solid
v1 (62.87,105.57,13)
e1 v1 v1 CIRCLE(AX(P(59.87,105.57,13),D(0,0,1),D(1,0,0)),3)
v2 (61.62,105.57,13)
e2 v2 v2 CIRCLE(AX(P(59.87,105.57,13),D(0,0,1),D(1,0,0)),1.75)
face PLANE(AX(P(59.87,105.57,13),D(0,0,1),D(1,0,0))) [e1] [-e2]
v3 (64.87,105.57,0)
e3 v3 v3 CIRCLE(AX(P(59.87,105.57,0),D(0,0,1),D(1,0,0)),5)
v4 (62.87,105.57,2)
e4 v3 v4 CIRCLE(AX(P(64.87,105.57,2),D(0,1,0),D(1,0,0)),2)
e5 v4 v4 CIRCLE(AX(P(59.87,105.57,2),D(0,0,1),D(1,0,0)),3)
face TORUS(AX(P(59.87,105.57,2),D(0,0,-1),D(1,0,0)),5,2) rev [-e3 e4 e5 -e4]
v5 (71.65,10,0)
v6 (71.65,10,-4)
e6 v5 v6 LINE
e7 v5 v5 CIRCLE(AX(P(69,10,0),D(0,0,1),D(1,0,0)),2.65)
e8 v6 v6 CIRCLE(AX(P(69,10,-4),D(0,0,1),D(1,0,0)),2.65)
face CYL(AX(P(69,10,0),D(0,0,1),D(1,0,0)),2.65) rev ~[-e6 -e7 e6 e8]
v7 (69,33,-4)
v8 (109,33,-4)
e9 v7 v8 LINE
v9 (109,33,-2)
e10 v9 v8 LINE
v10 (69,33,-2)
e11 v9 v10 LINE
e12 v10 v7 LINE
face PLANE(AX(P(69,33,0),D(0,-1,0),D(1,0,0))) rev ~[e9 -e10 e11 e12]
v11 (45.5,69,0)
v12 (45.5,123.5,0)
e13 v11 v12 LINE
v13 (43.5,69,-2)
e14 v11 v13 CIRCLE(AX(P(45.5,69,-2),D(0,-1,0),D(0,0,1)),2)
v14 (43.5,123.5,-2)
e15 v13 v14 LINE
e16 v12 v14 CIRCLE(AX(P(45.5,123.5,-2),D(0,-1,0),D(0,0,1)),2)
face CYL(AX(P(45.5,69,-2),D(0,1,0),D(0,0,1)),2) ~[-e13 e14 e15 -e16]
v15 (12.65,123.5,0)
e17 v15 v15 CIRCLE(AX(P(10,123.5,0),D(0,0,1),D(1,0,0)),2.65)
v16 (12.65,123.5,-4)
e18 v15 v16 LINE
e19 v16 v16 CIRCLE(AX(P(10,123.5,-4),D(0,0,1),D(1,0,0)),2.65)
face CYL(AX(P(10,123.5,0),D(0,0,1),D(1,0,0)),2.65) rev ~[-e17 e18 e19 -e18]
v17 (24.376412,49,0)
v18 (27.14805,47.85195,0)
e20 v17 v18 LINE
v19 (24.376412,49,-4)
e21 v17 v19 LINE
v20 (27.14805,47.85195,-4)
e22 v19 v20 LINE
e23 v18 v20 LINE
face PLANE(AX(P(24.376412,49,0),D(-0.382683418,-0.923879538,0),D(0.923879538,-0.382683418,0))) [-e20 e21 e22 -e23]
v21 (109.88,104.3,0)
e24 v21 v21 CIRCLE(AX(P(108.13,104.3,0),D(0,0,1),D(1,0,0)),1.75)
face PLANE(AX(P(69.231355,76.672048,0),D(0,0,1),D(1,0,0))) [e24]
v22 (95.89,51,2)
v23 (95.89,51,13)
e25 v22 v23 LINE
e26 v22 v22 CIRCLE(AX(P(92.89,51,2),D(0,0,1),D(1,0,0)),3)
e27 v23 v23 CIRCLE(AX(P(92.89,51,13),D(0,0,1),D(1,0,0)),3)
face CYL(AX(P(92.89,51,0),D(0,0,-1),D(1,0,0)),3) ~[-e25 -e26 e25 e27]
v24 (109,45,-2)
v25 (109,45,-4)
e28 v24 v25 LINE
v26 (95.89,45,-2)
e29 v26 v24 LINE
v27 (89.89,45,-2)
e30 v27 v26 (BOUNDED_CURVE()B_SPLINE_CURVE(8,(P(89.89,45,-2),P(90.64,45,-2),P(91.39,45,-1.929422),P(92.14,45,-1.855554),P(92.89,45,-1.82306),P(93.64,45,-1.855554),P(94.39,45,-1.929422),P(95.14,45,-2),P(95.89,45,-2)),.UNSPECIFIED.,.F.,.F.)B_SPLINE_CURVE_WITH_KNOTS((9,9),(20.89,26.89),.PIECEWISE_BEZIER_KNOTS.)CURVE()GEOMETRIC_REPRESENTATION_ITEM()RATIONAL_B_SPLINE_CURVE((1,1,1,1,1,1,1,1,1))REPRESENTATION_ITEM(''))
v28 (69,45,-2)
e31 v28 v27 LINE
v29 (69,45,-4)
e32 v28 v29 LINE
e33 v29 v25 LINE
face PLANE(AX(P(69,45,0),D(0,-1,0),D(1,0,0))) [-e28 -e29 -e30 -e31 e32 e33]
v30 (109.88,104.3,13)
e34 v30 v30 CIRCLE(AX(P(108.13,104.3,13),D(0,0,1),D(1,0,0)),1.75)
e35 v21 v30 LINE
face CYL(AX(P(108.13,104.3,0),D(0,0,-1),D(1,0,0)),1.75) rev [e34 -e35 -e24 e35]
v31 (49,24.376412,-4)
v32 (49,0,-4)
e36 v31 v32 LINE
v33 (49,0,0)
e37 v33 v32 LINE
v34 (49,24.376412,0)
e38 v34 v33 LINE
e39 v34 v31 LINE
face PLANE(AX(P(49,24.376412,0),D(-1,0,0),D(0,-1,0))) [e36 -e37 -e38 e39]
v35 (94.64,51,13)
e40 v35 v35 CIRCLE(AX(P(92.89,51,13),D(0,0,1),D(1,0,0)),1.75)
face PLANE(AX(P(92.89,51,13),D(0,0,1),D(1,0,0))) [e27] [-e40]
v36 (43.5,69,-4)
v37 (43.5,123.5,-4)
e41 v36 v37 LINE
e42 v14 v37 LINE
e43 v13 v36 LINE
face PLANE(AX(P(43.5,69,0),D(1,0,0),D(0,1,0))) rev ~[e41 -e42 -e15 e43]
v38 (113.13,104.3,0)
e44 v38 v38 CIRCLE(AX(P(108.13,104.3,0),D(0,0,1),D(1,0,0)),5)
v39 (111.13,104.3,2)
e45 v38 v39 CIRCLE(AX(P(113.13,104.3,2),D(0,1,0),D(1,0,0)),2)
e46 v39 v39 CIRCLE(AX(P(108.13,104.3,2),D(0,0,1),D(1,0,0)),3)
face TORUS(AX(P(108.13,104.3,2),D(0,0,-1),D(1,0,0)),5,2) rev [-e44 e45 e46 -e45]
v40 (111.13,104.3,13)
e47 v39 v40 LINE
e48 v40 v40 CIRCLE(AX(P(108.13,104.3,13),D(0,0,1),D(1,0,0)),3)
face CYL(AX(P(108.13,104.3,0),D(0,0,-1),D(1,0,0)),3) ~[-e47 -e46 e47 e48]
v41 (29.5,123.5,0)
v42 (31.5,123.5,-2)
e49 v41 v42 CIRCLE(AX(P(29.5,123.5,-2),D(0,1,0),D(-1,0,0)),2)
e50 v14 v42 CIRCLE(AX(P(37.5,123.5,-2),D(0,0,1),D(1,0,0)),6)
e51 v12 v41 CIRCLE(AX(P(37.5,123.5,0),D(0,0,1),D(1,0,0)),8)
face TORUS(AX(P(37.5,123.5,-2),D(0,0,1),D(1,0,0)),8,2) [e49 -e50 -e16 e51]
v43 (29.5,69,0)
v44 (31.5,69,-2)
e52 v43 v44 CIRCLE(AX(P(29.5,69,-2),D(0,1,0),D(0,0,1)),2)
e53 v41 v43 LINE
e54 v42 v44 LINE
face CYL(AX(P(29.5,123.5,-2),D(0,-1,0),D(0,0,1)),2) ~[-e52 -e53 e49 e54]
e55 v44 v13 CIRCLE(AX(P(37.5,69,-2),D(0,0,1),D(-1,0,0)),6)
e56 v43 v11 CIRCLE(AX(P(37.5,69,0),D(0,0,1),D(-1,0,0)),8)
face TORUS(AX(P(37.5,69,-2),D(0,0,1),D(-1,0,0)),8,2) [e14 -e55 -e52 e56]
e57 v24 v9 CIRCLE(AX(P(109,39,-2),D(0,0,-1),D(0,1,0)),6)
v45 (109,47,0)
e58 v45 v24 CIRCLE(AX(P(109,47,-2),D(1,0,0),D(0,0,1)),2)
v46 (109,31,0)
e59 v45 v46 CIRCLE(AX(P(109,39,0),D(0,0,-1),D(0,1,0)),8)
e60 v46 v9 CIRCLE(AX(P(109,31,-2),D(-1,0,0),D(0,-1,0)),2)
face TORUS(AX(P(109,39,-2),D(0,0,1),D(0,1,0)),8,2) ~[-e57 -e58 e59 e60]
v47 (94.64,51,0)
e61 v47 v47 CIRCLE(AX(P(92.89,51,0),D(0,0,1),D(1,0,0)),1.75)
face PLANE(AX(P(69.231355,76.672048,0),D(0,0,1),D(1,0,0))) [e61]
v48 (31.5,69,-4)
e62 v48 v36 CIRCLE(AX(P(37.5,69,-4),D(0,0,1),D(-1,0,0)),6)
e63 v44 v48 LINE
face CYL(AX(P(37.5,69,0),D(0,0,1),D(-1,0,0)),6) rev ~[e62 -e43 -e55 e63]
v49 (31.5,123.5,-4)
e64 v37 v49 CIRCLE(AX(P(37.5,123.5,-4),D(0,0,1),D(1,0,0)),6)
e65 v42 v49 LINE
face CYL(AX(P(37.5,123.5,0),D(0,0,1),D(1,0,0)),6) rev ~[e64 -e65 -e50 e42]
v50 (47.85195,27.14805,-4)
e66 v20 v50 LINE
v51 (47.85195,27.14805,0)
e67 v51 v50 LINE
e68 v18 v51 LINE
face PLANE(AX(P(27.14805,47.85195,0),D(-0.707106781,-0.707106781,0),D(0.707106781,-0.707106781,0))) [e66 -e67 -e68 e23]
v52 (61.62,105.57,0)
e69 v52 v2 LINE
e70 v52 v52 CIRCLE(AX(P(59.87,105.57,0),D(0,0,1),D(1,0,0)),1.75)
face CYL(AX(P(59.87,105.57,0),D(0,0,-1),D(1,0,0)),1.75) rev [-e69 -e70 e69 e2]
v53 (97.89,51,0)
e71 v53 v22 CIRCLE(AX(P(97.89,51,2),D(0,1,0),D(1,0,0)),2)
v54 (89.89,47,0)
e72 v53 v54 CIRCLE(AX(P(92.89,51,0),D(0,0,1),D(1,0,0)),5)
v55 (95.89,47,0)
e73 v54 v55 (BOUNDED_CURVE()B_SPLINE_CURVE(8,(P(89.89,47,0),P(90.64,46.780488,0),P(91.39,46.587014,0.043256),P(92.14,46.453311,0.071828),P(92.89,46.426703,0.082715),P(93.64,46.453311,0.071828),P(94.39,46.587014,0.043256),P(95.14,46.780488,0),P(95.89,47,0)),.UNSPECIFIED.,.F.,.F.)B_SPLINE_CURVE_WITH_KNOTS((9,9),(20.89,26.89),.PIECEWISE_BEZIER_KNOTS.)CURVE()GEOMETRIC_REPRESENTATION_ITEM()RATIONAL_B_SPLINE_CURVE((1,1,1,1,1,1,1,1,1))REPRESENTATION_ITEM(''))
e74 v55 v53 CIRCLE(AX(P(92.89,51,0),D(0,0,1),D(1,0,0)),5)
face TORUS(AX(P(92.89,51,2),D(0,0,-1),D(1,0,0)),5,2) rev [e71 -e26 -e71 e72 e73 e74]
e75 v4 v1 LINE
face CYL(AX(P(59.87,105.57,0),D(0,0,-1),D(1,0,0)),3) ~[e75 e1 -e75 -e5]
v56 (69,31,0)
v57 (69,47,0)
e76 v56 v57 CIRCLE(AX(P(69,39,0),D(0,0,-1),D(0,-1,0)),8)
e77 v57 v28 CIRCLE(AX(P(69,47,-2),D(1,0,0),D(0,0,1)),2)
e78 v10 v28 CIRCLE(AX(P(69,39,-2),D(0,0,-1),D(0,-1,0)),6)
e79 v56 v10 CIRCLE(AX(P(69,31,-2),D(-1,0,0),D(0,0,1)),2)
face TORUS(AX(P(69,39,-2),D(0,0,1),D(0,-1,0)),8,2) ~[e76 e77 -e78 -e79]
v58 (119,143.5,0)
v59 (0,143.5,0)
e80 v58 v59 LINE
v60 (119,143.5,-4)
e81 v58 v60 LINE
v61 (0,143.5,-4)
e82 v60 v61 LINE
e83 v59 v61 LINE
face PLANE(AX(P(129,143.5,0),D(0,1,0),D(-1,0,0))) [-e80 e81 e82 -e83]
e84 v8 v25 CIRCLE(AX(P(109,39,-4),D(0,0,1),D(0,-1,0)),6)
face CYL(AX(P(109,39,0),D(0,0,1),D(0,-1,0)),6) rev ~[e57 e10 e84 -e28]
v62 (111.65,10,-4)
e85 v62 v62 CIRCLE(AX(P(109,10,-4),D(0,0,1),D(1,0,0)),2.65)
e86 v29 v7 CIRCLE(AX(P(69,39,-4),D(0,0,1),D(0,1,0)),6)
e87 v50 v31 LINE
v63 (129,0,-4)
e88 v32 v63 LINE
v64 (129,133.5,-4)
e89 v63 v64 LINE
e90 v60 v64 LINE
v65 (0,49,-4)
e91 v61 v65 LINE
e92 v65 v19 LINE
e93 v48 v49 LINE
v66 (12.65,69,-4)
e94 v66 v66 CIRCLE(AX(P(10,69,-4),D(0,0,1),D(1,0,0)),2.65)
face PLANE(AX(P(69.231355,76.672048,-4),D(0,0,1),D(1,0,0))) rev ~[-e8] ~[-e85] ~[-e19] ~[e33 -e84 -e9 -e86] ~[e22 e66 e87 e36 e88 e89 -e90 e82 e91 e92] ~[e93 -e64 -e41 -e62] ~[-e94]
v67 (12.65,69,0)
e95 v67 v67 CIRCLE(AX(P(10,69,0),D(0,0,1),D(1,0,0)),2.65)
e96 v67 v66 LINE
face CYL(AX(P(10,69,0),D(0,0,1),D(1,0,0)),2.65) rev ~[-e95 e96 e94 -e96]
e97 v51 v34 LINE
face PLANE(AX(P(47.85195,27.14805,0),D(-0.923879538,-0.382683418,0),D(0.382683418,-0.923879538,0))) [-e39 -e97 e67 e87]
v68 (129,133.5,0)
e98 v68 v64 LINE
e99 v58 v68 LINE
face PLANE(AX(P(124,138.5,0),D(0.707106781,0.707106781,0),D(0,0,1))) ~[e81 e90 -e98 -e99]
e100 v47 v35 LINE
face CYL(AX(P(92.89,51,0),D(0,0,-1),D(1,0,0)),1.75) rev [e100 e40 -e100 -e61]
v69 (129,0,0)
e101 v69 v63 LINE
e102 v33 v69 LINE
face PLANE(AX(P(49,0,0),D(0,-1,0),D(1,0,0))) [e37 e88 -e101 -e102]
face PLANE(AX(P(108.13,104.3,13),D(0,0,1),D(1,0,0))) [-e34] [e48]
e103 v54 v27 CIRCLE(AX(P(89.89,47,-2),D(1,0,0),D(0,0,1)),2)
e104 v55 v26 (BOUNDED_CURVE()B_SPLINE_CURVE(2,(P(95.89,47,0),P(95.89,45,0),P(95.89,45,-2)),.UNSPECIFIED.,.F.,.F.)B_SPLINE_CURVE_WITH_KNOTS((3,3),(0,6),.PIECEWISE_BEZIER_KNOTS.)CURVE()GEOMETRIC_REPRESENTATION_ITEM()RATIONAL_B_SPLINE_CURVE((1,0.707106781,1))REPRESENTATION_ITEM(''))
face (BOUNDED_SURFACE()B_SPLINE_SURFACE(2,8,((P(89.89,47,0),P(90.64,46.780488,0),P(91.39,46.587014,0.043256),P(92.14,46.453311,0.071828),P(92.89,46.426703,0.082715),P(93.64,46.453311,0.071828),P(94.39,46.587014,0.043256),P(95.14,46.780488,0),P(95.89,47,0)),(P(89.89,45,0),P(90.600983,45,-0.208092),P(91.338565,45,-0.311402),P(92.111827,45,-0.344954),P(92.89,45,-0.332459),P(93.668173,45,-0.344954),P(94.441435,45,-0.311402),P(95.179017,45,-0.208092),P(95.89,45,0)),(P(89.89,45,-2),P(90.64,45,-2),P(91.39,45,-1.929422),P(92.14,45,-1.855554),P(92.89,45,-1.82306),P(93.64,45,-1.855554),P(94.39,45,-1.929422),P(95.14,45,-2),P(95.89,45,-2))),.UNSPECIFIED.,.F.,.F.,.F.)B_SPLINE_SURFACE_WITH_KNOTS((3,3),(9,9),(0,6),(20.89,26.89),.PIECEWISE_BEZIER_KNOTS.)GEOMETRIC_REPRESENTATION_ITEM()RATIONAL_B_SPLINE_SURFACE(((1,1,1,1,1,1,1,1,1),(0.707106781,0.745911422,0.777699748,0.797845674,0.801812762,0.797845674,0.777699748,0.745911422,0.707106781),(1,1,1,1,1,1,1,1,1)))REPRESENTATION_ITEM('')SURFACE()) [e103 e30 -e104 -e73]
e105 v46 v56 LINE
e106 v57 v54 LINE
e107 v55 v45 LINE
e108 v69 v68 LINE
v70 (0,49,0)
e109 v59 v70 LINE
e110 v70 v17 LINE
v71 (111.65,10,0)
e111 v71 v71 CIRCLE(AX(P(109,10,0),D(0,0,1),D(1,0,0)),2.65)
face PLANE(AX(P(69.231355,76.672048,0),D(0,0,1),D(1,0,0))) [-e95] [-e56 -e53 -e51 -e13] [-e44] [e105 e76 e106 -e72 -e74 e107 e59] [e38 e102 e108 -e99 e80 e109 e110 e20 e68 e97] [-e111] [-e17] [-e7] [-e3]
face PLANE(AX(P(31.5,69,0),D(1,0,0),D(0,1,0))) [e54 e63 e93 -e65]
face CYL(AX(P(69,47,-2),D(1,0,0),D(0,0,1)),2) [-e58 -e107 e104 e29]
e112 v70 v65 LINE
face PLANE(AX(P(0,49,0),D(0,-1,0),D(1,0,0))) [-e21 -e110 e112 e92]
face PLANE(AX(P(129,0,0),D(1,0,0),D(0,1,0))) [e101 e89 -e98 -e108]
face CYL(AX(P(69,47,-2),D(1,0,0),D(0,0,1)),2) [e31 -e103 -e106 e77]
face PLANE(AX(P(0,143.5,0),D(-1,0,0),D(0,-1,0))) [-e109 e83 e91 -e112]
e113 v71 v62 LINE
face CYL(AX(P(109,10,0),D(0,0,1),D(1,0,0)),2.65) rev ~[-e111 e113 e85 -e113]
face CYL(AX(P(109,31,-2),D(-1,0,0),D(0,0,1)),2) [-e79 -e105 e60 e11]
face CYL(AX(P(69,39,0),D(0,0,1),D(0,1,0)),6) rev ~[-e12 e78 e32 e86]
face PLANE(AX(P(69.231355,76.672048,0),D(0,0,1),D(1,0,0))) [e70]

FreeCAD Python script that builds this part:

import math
import FreeCAD as App
import Part
import Sketcher
from FreeCAD import Vector
Q = App.Units.Quantity


def edges_at(feature, points):
    """Names of the edges that pass closest to the given points."""
    edges = feature.Shape.Edges
    near = lambda p: min(range(len(edges)), key=lambda i: edges[i].distToShape(Part.Vertex(*p))[0])
    return sorted({f"Edge{near(p) + 1}" for p in points})

doc = App.newDocument("Part")
params = doc.addObject("Spreadsheet::Sheet", "Params")
for row, (alias, value) in enumerate([
    ("sketch1_diameter", "5.3 mm"),
    ("sketch1_width", "80 mm"),
    ("sketch1_width2", "129 mm"),
    ("sketch1_length", "2.999999 mm"),
    ("sketch1_height", "143.5 mm"),
    ("pad1_length", "4 mm"),
    ("sketch2_diameter", "6 mm"),
    ("sketch2_diameter2", "3.5 mm"),
    ("pad2_length", "13 mm"),
    ("chamfer_size", "10 mm"),
    ("fillet_radius", "2 mm"),
    ("sketch3_radius", "6 mm"),
    ("sketch3_width", "40 mm"),
    ("sketch3_height", "54.5 mm"),
    ("pocket1_length", "5 mm"),
    ("fillet2_radius", "2 mm"),
], start=1):
    params.set(f"A{row}", alias)
    params.set(f"B{row}", "=" + value)
    params.setAlias(f"B{row}", alias)

body = doc.addObject("PartDesign::Body", "Body")

sketch1 = doc.addObject("Sketcher::SketchObject", "Sketch")
body.addObject(sketch1)
sketch1.AttachmentSupport = (doc.XY_Plane, [""])
sketch1.MapMode = "FlatFace"
sketch1.addGeometry(Part.LineSegment(Vector(0, 49, 0), Vector(24.4, 49, 0)), False)
sketch1.addGeometry(Part.LineSegment(Vector(24.4, 49, 0), Vector(27.1, 47.9, 0)), False)
sketch1.addGeometry(Part.LineSegment(Vector(27.1, 47.9, 0), Vector(47.9, 27.1, 0)), False)
sketch1.addGeometry(Part.LineSegment(Vector(47.9, 27.1, 0), Vector(49, 24.4, 0)), False)
sketch1.addGeometry(Part.LineSegment(Vector(49, 24.4, 0), Vector(49, 0, 0)), False)
sketch1.addGeometry(Part.LineSegment(Vector(49, 0, 0), Vector(129, 0, 0)), False)
sketch1.addGeometry(Part.LineSegment(Vector(129, 0, 0), Vector(129, 143.5, 0)), False)
sketch1.addGeometry(Part.LineSegment(Vector(129, 143.5, 0), Vector(0, 143.5, 0)), False)
sketch1.addGeometry(Part.LineSegment(Vector(0, 143.5, 0), Vector(0, 49, 0)), False)
sketch1.addGeometry(Part.Circle(Vector(69, 10, 0), Vector(0, 0, 1), 2.6), False)
sketch1.addGeometry(Part.Circle(Vector(109, 10, 0), Vector(0, 0, 1), 2.6), False)
sketch1.addGeometry(Part.Circle(Vector(10, 69, 0), Vector(0, 0, 1), 2.6), False)
sketch1.addGeometry(Part.Circle(Vector(10, 123.5, 0), Vector(0, 0, 1), 2.6), False)
sketch1.addConstraint(Sketcher.Constraint("Coincident", 0, 2, 1, 1))
sketch1.addConstraint(Sketcher.Constraint("Coincident", 1, 2, 2, 1))
sketch1.addConstraint(Sketcher.Constraint("Coincident", 2, 2, 3, 1))
sketch1.addConstraint(Sketcher.Constraint("Coincident", 3, 2, 4, 1))
sketch1.addConstraint(Sketcher.Constraint("Coincident", 4, 2, 5, 1))
sketch1.addConstraint(Sketcher.Constraint("Coincident", 5, 2, 6, 1))
sketch1.addConstraint(Sketcher.Constraint("Coincident", 6, 2, 7, 1))
sketch1.addConstraint(Sketcher.Constraint("Coincident", 7, 2, 8, 1))
sketch1.addConstraint(Sketcher.Constraint("Coincident", 8, 2, 0, 1))
sketch1.addConstraint(Sketcher.Constraint("Horizontal", 0))
sketch1.addConstraint(Sketcher.Constraint("Vertical", 4))
sketch1.addConstraint(Sketcher.Constraint("Horizontal", 5))
sketch1.addConstraint(Sketcher.Constraint("Vertical", 6))
sketch1.addConstraint(Sketcher.Constraint("Horizontal", 7))
sketch1.addConstraint(Sketcher.Constraint("Vertical", 8))
sketch1.addConstraint(Sketcher.Constraint("Equal", 9, 10))
sketch1.addConstraint(Sketcher.Constraint("Equal", 10, 11))
sketch1.addConstraint(Sketcher.Constraint("Equal", 11, 12))
sketch1.addConstraint(Sketcher.Constraint("PointOnObject", 4, 2, -1))
sketch1.addConstraint(Sketcher.Constraint("PointOnObject", 7, 2, -2))
sketch1.addConstraint(Sketcher.Constraint("Horizontal", 9, 3, 10, 3))
sketch1.addConstraint(Sketcher.Constraint("Vertical", 11, 3, 12, 3))
sketch1.addConstraint(Sketcher.Constraint("Equal", 0, 4))
sketch1.addConstraint(Sketcher.Constraint("Equal", 1, 3))
sketch1.addConstraint(Sketcher.Constraint("Diameter", 9, 5.3))
sketch1.addConstraint(Sketcher.Constraint("DistanceX", 5, 1, 5, 2, 80.0))
sketch1.addConstraint(Sketcher.Constraint("DistanceX", 7, 2, 7, 1, 129.0))
sketch1.addConstraint(Sketcher.Constraint("Angle", 2, Q("-45 deg")))
sketch1.addConstraint(Sketcher.Constraint("Distance", 1, 2.999999))
sketch1.addConstraint(Sketcher.Constraint("DistanceY", 6, 1, 6, 2, 143.5))
sketch1.addConstraint(Sketcher.Constraint("DistanceY", 8, 2, 8, 1, 94.5))
sketch1.addConstraint(Sketcher.Constraint("DistanceX", -1, 1, 9, 3, 69.0))
sketch1.addConstraint(Sketcher.Constraint("DistanceY", -1, 1, 9, 3, 10.0))
sketch1.addConstraint(Sketcher.Constraint("DistanceX", -1, 1, 10, 3, 109.0))
sketch1.addConstraint(Sketcher.Constraint("DistanceX", -1, 1, 11, 3, 10.0))
sketch1.addConstraint(Sketcher.Constraint("DistanceY", -1, 1, 11, 3, 69.0))
sketch1.addConstraint(Sketcher.Constraint("Angle", 1, Q("-22.499999 deg")))
sketch1.addConstraint(Sketcher.Constraint("DistanceY", 12, 3, 6, 2, 20.0))
sketch1.addConstraint(Sketcher.Constraint("DistanceX", 0, 1, 0, 2, 24.376412))
sketch1.setExpression("Constraints[24]", "Params.sketch1_diameter")
sketch1.setExpression("Constraints[25]", "Params.sketch1_width")
sketch1.setExpression("Constraints[26]", "Params.sketch1_width2")
sketch1.setExpression("Constraints[28]", "Params.sketch1_length")
sketch1.setExpression("Constraints[29]", "Params.sketch1_height")
pad1 = doc.addObject("PartDesign::Pad", "Pad")
body.addObject(pad1)
pad1.Profile = sketch1
pad1.setExpression("Length", "Params.pad1_length")
pad1.Reversed = True

sketch2 = doc.addObject("Sketcher::SketchObject", "Sketch001")
body.addObject(sketch2)
sketch2.AttachmentSupport = (doc.XY_Plane, [""])
sketch2.MapMode = "FlatFace"
sketch2.addGeometry(Part.Circle(Vector(59.9, 105.6, 0), Vector(0, 0, 1), 3), False)
sketch2.addGeometry(Part.Circle(Vector(59.9, 105.6, 0), Vector(0, 0, 1), 1.8), False)
sketch2.addGeometry(Part.Circle(Vector(108.1, 104.3, 0), Vector(0, 0, 1), 3), False)
sketch2.addGeometry(Part.Circle(Vector(108.1, 104.3, 0), Vector(0, 0, 1), 1.8), False)
sketch2.addGeometry(Part.Circle(Vector(92.9, 51, 0), Vector(0, 0, 1), 3), False)
sketch2.addGeometry(Part.Circle(Vector(92.9, 51, 0), Vector(0, 0, 1), 1.8), False)
sketch2.addConstraint(Sketcher.Constraint("Coincident", 1, 3, 0, 3))
sketch2.addConstraint(Sketcher.Constraint("Coincident", 3, 3, 2, 3))
sketch2.addConstraint(Sketcher.Constraint("Coincident", 5, 3, 4, 3))
sketch2.addConstraint(Sketcher.Constraint("Equal", 0, 2))
sketch2.addConstraint(Sketcher.Constraint("Equal", 1, 3))
sketch2.addConstraint(Sketcher.Constraint("Equal", 2, 4))
sketch2.addConstraint(Sketcher.Constraint("Equal", 3, 5))
sketch2.addConstraint(Sketcher.Constraint("Diameter", 0, 6.0))
sketch2.addConstraint(Sketcher.Constraint("Diameter", 1, 3.5))
sketch2.addConstraint(Sketcher.Constraint("DistanceY", -1, 1, 4, 3, 51.0))
sketch2.addConstraint(Sketcher.Constraint("DistanceY", -1, 1, 2, 3, 104.3))
sketch2.addConstraint(Sketcher.Constraint("DistanceX", -1, 1, 0, 3, 59.87))
sketch2.addConstraint(Sketcher.Constraint("DistanceY", -1, 1, 0, 3, 105.57))
sketch2.addConstraint(Sketcher.Constraint("DistanceX", -1, 1, 2, 3, 108.13))
sketch2.addConstraint(Sketcher.Constraint("DistanceX", -1, 1, 4, 3, 92.89))
sketch2.setExpression("Constraints[7]", "Params.sketch2_diameter")
sketch2.setExpression("Constraints[8]", "Params.sketch2_diameter2")
pad2 = doc.addObject("PartDesign::Pad", "Pad001")
body.addObject(pad2)
pad2.Profile = sketch2
pad2.setExpression("Length", "Params.pad2_length")
doc.recompute()

chamfer = doc.addObject("PartDesign::Chamfer", "Chamfer")
body.addObject(chamfer)
chamfer.Base = (pad2, edges_at(pad2, [(129, 143.5, -2)]))
chamfer.setExpression("Size", "Params.chamfer_size")
doc.recompute()

fillet = doc.addObject("PartDesign::Fillet", "Fillet")
body.addObject(fillet)
fillet.Base = (chamfer, edges_at(chamfer, [(89.89, 51, 0), (56.87, 105.57, 0), (105.13, 104.3, 0)]))
fillet.setExpression("Radius", "Params.fillet_radius")

sketch3 = doc.addObject("Sketcher::SketchObject", "Sketch002")
body.addObject(sketch3)
sketch3.AttachmentSupport = (doc.XY_Plane, [""])
sketch3.MapMode = "FlatFace"
sketch3.addGeometry(Part.ArcOfCircle(Part.Circle(Vector(38, 69, 0), Vector(0, 0, 1), 6), math.radians(180), math.radians(360)), False)
sketch3.addGeometry(Part.LineSegment(Vector(44, 69, 0), Vector(44, 124, 0)), False)
sketch3.addGeometry(Part.ArcOfCircle(Part.Circle(Vector(38, 124, 0), Vector(0, 0, 1), 6), math.radians(0), math.radians(180)), False)
sketch3.addGeometry(Part.LineSegment(Vector(32, 124, 0), Vector(32, 69, 0)), False)
sketch3.addGeometry(Part.ArcOfCircle(Part.Circle(Vector(69, 39, 0), Vector(0, 0, 1), 6), math.radians(90), math.radians(270)), False)
sketch3.addGeometry(Part.LineSegment(Vector(69, 33, 0), Vector(109, 33, 0)), False)
sketch3.addGeometry(Part.ArcOfCircle(Part.Circle(Vector(109, 39, 0), Vector(0, 0, 1), 6), math.radians(-90), math.radians(90)), False)
sketch3.addGeometry(Part.LineSegment(Vector(109, 45, 0), Vector(69, 45, 0)), False)
sketch3.addConstraint(Sketcher.Constraint("Tangent", 0, 2, 1, 1))
sketch3.addConstraint(Sketcher.Constraint("Tangent", 1, 2, 2, 1))
sketch3.addConstraint(Sketcher.Constraint("Tangent", 2, 2, 3, 1))
sketch3.addConstraint(Sketcher.Constraint("Tangent", 3, 2, 0, 1))
sketch3.addConstraint(Sketcher.Constraint("Tangent", 4, 2, 5, 1))
sketch3.addConstraint(Sketcher.Constraint("Tangent", 5, 2, 6, 1))
sketch3.addConstraint(Sketcher.Constraint("Tangent", 6, 2, 7, 1))
sketch3.addConstraint(Sketcher.Constraint("Tangent", 7, 2, 4, 1))
sketch3.addConstraint(Sketcher.Constraint("Vertical", 1))
sketch3.addConstraint(Sketcher.Constraint("Vertical", 3))
sketch3.addConstraint(Sketcher.Constraint("Horizontal", 5))
sketch3.addConstraint(Sketcher.Constraint("Horizontal", 7))
sketch3.addConstraint(Sketcher.Constraint("Equal", 2, 4))
sketch3.addConstraint(Sketcher.Constraint("Radius", 0, 6.0))
sketch3.addConstraint(Sketcher.Constraint("DistanceX", 5, 1, 5, 2, 40.0))
sketch3.addConstraint(Sketcher.Constraint("DistanceY", 1, 1, 1, 2, 54.5))
sketch3.addConstraint(Sketcher.Constraint("DistanceY", -1, 1, 0, 3, 69.0))
sketch3.addConstraint(Sketcher.Constraint("DistanceX", -1, 1, 4, 3, 69.0))
sketch3.addConstraint(Sketcher.Constraint("DistanceY", -1, 1, 4, 3, 39.0))
sketch3.addConstraint(Sketcher.Constraint("DistanceX", -1, 1, 0, 3, 37.5))
sketch3.setExpression("Constraints[13]", "Params.sketch3_radius")
sketch3.setExpression("Constraints[14]", "Params.sketch3_width")
sketch3.setExpression("Constraints[15]", "Params.sketch3_height")
pocket1 = doc.addObject("PartDesign::Pocket", "Pocket")
body.addObject(pocket1)
pocket1.Profile = sketch3
pocket1.setExpression("Length", "Params.pocket1_length")
doc.recompute()

fillet2 = doc.addObject("PartDesign::Fillet", "Fillet001")
body.addObject(fillet2)
fillet2.Base = (pocket1, edges_at(pocket1, [(43.5, 96.25, 0), (89, 45, 0)]))
fillet2.setExpression("Radius", "Params.fillet2_radius")

doc.recompute()
